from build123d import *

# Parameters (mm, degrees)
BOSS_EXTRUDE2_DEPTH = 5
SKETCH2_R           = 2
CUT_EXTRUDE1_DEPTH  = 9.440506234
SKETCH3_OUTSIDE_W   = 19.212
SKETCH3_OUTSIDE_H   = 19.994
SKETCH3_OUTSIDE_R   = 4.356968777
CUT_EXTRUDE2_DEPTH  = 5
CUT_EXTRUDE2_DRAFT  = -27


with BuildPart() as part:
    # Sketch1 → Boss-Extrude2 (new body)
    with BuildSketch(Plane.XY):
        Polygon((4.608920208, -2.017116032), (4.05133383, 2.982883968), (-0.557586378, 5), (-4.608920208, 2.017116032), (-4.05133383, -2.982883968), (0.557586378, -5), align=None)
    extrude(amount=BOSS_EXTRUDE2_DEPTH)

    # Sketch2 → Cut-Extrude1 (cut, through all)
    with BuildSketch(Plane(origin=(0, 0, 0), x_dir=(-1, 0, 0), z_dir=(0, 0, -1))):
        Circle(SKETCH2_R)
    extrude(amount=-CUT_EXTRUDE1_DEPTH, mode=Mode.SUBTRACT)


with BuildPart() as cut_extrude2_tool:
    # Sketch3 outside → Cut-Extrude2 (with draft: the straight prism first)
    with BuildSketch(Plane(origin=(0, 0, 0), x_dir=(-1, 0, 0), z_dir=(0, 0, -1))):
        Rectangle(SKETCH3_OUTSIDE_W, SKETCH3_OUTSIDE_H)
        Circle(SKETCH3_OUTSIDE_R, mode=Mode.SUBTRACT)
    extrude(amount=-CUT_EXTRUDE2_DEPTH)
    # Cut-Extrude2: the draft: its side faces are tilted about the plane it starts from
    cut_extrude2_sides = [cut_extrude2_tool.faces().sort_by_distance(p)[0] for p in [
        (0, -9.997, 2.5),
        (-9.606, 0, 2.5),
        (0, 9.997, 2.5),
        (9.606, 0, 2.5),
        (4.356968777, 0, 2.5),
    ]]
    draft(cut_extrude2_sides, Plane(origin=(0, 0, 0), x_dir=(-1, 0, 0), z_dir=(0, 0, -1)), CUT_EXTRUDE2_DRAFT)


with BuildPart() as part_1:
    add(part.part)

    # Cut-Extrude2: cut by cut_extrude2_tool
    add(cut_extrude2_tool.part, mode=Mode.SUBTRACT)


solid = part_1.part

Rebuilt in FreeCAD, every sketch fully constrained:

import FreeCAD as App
import Part
import Sketcher

V = App.Vector


def faces_at(feature, points):
    """Names of the faces that lie closest to the given points."""
    faces = feature.Shape.Faces
    near = lambda p: min(range(len(faces)), key=lambda i: faces[i].distToShape(Part.Vertex(*p))[0])
    return sorted({f"Face{near(p) + 1}" for p in points})


def add_polygon(sketch, points):
    """Adds a closed chain of lines whose ends are joined by coincident constraints."""
    first, n = sketch.GeometryCount, len(points)
    for a, b in zip(points, points[1:] + points[:1]):
        sketch.addGeometry(Part.LineSegment(App.Vector(*a, 0), App.Vector(*b, 0)), False)
    for i in range(n):
        sketch.addConstraint(Sketcher.Constraint("Coincident", first + i, 2, first + (i + 1) % n, 1))

doc = App.newDocument("Part")
params = doc.addObject("Spreadsheet::Sheet", "Params")
for row, (alias, value) in enumerate([
    ("pad1_length", "5 mm"),
    ("sketch2_diameter", "4 mm"),
    ("pad2_length", "5 mm"),
    ("draft_angle", "27 deg"),
], start=1):
    params.set(f"A{row}", alias)
    params.set(f"B{row}", "=" + value)
    params.setAlias(f"B{row}", alias)

body = doc.addObject("PartDesign::Body", "Body")

sketch1 = doc.addObject("Sketcher::SketchObject", "Sketch")
body.addObject(sketch1)
sketch1.AttachmentSupport = (doc.XY_Plane, [""])
sketch1.MapMode = "FlatFace"
add_polygon(sketch1, [(5, -2), (4, 3), (-1, 5), (-5, 2), (-4, -3), (1, -5)])
sketch1.addConstraint(Sketcher.Constraint("Symmetric", 0, 2, 3, 2, -1, 1))
sketch1.addConstraint(Sketcher.Constraint("Symmetric", 1, 2, 4, 2, -1, 1))
sketch1.addConstraint(Sketcher.Constraint("Symmetric", 2, 2, 5, 2, -1, 1))
sketch1.addConstraint(Sketcher.Constraint("Equal", 0, 1))
sketch1.addConstraint(Sketcher.Constraint("Equal", 1, 2))
sketch1.addConstraint(Sketcher.Constraint("DistanceY", -1, 1, 1, 2, 5.0))
sketch1.addConstraint(Sketcher.Constraint("DistanceY", 3, 2, 2, 2, 5.0))
sketch1.addConstraint(Sketcher.Constraint("DistanceX", 2, 2, -1, 1, 4.60892))
sketch1.addConstraint(Sketcher.Constraint("DistanceX", 1, 2, 0, 2, 4.60892))
pad1 = doc.addObject("PartDesign::Pad", "Pad")
body.addObject(pad1)
pad1.Profile = sketch1
pad1.setExpression("Length", "Params.pad1_length")

sketch2 = doc.addObject("Sketcher::SketchObject", "Sketch001")
body.addObject(sketch2)
sketch2.AttachmentSupport = (doc.XY_Plane, [""])
sketch2.MapMode = "FlatFace"
sketch2.addGeometry(Part.Circle(V(0, 0, 0), V(0, 0, 1), 2), False)
sketch2.addConstraint(Sketcher.Constraint("Coincident", 0, 3, -1, 1))
sketch2.addConstraint(Sketcher.Constraint("Diameter", 0, 4.0))
sketch2.setExpression("Constraints[1]", "Params.sketch2_diameter")
pocket1 = doc.addObject("PartDesign::Pocket", "Pocket")
body.addObject(pocket1)
pocket1.Profile = sketch2
pocket1.Type = "ThroughAll"
pocket1.Reversed = True
body2 = doc.addObject("PartDesign::Body", "Body001")

sketch3 = doc.addObject("Sketcher::SketchObject", "Sketch002")
body2.addObject(sketch3)
sketch3.AttachmentSupport = (doc.getObject("XY_Plane001"), [""])
sketch3.MapMode = "FlatFace"
add_polygon(sketch3, [(9.6, 10), (9.6, -10), (-9.6, -10), (-9.6, 10)])
sketch3.addGeometry(Part.Circle(V(0, 0, 0), V(0, 0, 1), 4.4), False)
sketch3.addConstraint(Sketcher.Constraint("Vertical", 0))
sketch3.addConstraint(Sketcher.Constraint("Horizontal", 1))
sketch3.addConstraint(Sketcher.Constraint("Vertical", 2))
sketch3.addConstraint(Sketcher.Constraint("Horizontal", 3))
sketch3.addConstraint(Sketcher.Constraint("Coincident", 4, 3, -1, 1))
sketch3.addConstraint(Sketcher.Constraint("Symmetric", 0, 2, 2, 2, -1, 1))
sketch3.addConstraint(Sketcher.Constraint("DistanceX", 1, 2, 1, 1, 19.212))
sketch3.addConstraint(Sketcher.Constraint("DistanceY", 0, 2, 0, 1, 19.994))
sketch3.addConstraint(Sketcher.Constraint("Diameter", 4, 8.713938))
pad2 = doc.addObject("PartDesign::Pad", "Pad001")
body2.addObject(pad2)
pad2.Profile = sketch3
pad2.setExpression("Length", "Params.pad2_length")
doc.recompute()

draft = doc.addObject("PartDesign::Draft", "Draft")
body2.addObject(draft)
draft.Base = (pad2, faces_at(pad2, [
    (0, -9.997, 2.5),
    (-9.606, 0, 2.5),
    (0, 9.997, 2.5),
    (9.606, 0, 2.5),
    (4.357, 0, 2.5),
]))
draft.NeutralPlane = (doc.getObject("XY_Plane001"), [""])
draft.setExpression("Angle", "Params.draft_angle")
draft.Reversed = False
doc.recompute()

boolean = doc.addObject("PartDesign::Boolean", "Boolean")
body.addObject(boolean)
boolean.Type = "Cut"
boolean.addObjects([body2])

doc.recompute()
